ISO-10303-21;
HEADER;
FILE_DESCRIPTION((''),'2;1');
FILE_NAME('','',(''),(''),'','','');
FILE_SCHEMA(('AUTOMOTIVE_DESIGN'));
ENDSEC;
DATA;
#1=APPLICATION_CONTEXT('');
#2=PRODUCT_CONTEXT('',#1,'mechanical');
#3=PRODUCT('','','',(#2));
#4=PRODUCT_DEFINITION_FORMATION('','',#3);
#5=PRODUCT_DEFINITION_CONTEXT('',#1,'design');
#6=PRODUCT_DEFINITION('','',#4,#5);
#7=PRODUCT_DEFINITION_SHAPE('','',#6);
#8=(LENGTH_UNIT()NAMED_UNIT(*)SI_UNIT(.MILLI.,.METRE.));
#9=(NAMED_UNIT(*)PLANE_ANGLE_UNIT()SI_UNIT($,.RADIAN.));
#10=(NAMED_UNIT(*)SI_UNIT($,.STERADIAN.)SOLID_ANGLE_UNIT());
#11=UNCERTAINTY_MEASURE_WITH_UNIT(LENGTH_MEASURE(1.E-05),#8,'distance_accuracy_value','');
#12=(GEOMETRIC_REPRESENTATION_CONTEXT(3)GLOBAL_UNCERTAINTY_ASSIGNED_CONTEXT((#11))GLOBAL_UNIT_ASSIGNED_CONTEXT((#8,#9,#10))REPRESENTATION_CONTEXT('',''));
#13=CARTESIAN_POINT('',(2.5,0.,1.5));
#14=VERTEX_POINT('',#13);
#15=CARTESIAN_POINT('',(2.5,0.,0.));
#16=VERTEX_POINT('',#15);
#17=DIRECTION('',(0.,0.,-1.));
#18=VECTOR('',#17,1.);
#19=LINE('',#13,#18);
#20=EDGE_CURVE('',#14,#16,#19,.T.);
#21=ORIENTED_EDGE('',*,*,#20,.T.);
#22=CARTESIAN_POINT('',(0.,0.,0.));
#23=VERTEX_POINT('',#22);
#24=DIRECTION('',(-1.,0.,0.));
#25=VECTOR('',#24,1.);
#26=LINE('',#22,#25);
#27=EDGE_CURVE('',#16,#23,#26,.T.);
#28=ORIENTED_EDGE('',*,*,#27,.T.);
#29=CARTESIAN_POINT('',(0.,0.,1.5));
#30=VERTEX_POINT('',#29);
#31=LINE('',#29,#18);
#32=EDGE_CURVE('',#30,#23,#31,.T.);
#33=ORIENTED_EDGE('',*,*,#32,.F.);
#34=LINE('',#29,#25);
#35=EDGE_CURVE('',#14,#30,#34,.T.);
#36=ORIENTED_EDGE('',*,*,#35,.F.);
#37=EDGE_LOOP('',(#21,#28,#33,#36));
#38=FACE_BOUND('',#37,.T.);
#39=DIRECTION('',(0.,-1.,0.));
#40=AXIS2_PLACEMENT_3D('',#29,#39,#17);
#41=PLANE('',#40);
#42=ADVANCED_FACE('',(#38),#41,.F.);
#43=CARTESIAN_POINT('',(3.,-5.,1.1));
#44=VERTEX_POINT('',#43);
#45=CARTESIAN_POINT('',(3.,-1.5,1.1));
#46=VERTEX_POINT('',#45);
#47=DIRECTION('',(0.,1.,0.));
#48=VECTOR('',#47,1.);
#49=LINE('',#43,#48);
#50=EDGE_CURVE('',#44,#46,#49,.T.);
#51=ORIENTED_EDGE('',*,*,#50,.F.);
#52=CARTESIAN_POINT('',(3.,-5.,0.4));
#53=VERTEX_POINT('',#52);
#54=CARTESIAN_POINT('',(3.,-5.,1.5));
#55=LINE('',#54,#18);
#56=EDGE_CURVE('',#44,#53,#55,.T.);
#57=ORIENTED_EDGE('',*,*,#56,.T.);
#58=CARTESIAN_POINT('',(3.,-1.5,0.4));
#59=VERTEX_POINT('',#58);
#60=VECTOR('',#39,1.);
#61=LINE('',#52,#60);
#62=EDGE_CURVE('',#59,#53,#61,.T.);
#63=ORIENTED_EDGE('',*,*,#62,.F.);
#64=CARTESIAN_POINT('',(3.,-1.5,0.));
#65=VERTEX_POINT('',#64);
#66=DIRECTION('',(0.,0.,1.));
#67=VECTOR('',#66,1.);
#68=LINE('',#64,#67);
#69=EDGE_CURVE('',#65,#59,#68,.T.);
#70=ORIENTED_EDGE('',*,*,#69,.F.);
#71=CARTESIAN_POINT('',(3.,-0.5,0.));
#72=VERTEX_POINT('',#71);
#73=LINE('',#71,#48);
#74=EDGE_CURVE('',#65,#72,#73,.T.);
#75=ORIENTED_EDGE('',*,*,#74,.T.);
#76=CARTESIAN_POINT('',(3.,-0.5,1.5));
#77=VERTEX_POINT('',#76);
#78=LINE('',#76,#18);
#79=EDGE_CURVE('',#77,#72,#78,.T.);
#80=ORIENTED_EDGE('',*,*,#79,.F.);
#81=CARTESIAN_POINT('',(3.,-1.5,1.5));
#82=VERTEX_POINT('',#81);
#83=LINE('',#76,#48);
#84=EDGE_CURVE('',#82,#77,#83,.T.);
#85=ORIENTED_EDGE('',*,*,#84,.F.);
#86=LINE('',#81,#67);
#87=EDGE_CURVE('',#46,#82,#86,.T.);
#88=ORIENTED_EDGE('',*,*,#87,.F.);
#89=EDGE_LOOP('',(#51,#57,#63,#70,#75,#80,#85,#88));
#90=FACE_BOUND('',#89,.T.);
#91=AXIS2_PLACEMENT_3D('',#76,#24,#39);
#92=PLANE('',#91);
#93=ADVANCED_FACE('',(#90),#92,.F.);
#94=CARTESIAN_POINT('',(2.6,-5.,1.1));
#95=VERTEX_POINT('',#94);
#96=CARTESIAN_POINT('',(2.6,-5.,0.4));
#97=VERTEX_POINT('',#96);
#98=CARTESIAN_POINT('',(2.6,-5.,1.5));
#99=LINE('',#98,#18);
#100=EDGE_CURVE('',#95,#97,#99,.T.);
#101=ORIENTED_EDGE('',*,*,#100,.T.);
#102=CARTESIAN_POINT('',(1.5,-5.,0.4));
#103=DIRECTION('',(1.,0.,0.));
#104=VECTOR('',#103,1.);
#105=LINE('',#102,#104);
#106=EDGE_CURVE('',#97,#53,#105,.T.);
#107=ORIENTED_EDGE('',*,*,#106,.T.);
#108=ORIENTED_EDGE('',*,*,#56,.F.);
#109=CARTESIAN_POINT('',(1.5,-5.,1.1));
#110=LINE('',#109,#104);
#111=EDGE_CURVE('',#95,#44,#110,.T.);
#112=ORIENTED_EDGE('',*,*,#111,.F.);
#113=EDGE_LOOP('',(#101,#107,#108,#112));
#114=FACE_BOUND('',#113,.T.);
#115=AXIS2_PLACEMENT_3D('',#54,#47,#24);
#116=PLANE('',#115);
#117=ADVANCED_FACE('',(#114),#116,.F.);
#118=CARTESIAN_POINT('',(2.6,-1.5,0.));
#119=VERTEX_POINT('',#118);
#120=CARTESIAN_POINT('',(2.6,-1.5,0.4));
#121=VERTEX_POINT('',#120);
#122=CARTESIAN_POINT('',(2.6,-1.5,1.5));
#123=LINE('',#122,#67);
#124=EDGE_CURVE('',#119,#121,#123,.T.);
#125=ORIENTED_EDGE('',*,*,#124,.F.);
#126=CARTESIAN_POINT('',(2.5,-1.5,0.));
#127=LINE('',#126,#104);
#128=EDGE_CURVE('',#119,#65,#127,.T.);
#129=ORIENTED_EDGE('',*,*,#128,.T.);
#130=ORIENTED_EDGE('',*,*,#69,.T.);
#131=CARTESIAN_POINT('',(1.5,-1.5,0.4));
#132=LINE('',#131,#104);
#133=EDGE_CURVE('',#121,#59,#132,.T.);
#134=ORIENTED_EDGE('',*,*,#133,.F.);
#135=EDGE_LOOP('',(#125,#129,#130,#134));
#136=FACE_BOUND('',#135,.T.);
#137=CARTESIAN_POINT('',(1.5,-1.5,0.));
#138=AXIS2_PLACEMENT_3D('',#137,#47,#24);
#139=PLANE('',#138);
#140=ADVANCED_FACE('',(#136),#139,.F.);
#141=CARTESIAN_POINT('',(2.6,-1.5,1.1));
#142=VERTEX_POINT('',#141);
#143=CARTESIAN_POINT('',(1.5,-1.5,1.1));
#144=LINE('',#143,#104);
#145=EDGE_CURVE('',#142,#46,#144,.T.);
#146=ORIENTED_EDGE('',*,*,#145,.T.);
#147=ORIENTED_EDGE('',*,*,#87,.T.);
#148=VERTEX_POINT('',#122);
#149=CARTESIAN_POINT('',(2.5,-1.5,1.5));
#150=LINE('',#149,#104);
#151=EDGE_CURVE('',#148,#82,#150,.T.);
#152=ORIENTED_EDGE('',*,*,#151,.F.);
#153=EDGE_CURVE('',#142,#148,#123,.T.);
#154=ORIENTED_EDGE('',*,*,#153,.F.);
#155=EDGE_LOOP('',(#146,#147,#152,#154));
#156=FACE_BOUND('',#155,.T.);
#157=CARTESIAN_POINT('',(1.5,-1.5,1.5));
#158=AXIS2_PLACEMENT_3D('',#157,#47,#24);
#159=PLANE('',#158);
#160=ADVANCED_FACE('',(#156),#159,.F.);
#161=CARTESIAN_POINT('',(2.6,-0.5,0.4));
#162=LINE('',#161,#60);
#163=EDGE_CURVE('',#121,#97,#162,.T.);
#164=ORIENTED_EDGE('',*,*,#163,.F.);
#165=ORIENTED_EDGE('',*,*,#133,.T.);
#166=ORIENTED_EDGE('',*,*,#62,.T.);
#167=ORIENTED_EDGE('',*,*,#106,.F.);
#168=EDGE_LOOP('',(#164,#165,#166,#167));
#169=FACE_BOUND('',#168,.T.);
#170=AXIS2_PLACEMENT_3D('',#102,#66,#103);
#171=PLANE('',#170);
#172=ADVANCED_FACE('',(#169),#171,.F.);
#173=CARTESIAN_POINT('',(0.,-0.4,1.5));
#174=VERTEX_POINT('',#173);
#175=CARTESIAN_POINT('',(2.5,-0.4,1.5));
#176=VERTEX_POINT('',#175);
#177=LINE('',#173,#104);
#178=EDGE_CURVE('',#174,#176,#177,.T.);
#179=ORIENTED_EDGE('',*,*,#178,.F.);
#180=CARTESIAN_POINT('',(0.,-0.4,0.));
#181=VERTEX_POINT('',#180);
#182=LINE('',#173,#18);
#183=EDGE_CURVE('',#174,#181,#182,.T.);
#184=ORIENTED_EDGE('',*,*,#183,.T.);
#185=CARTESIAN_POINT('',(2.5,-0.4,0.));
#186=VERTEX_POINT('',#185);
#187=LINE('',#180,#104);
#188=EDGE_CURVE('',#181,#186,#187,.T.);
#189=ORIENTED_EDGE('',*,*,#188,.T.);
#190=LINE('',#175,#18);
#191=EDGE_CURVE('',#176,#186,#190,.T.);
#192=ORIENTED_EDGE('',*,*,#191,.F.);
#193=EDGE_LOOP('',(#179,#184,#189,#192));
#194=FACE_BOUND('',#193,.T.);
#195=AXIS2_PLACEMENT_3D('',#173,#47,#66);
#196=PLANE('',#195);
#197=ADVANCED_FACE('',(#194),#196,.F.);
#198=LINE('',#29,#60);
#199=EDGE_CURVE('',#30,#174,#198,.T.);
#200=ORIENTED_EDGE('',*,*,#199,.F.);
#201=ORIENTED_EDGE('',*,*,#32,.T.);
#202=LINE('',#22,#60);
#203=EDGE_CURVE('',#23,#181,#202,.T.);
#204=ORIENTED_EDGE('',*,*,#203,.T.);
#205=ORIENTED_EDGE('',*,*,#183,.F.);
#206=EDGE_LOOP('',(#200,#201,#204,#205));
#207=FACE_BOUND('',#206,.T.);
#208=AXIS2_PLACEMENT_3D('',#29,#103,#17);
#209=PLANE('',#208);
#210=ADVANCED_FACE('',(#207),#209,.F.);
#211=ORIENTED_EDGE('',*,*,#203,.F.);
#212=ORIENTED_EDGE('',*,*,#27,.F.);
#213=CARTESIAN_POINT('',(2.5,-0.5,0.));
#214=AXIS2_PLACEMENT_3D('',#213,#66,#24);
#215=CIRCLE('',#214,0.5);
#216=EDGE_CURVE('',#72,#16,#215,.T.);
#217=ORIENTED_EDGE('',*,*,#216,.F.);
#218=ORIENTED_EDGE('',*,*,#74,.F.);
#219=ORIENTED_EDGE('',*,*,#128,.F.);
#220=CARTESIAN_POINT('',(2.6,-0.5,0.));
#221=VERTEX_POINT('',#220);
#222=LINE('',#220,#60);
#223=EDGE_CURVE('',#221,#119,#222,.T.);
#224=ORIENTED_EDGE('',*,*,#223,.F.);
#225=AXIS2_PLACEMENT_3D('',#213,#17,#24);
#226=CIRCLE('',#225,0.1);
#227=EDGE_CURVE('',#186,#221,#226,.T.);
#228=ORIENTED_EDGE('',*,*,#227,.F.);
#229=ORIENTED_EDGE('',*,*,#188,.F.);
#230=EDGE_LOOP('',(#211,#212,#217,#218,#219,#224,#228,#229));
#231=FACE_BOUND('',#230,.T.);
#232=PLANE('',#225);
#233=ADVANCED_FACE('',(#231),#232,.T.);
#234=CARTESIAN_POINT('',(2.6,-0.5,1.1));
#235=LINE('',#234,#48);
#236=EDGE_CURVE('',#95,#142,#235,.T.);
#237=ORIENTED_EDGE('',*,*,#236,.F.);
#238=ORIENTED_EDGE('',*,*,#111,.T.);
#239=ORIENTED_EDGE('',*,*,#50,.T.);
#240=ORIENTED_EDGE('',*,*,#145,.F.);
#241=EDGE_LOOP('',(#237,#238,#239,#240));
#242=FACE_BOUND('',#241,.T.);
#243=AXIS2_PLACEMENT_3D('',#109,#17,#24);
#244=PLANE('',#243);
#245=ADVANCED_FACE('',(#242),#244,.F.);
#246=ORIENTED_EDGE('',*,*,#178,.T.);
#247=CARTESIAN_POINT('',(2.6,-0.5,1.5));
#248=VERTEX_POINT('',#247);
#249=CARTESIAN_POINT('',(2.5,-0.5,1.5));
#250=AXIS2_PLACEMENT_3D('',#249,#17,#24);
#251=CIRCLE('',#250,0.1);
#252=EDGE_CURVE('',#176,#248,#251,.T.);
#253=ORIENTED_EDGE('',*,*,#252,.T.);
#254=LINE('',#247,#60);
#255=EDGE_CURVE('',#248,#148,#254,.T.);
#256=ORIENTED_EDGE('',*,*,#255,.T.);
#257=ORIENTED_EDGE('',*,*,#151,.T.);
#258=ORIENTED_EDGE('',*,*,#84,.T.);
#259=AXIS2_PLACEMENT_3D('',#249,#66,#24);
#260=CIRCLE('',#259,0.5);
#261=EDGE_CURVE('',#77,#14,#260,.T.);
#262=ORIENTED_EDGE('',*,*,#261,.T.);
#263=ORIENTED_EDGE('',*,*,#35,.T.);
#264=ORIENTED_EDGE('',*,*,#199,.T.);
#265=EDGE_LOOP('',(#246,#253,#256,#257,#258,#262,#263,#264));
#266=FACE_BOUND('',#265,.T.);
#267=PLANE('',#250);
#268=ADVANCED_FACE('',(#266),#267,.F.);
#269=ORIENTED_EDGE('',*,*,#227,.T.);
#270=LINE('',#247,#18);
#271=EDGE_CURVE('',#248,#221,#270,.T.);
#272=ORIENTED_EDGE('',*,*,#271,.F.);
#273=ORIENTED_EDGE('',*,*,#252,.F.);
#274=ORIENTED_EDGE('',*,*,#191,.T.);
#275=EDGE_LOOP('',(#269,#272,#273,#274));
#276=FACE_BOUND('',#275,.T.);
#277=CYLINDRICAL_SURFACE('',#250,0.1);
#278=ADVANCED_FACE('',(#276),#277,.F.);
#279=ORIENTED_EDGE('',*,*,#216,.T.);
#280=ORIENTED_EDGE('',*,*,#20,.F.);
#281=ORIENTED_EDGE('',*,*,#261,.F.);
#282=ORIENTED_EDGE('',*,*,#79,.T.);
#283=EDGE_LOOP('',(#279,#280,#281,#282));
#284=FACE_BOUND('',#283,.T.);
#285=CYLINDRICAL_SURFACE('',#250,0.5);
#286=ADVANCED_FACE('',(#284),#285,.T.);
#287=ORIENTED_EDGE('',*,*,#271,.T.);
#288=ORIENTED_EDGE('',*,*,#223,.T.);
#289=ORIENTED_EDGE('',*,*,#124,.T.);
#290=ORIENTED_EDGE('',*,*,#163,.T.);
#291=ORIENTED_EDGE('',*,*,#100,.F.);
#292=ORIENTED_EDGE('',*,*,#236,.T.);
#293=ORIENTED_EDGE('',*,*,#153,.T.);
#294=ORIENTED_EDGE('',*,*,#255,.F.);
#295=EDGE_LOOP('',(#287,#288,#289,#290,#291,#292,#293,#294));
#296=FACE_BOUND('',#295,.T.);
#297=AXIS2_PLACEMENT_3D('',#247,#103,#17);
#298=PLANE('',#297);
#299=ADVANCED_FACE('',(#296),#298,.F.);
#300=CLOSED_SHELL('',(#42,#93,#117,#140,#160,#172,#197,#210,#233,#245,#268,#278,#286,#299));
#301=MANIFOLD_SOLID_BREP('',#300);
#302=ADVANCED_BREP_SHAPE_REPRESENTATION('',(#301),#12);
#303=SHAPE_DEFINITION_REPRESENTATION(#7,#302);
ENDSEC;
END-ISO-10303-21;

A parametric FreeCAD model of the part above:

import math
import FreeCAD as App
import Part
import Sketcher

V = App.Vector
Q = App.Units.Quantity


def add_polygon(sketch, points):
    """Adds a closed chain of lines whose ends are joined by coincident constraints."""
    first, n = sketch.GeometryCount, len(points)
    for a, b in zip(points, points[1:] + points[:1]):
        sketch.addGeometry(Part.LineSegment(App.Vector(*a, 0), App.Vector(*b, 0)), False)
    for i in range(n):
        sketch.addConstraint(Sketcher.Constraint("Coincident", first + i, 2, first + (i + 1) % n, 1))

doc = App.newDocument("Part")
body = doc.addObject("PartDesign::Body", "Body")

# Sketch on XY plane
sketch1 = body.newObject("Sketcher::SketchObject", "Sketch")
sketch1.AttachmentSupport = (doc.getObject("XY_Plane"), [""])
sketch1.MapMode = "FlatFace"
sketch1.addGeometry([
    Part.LineSegment(V(2.5, 0, 0), V(0, 0, 0)),  # 0
    Part.LineSegment(V(0, 0, 0), V(0, -0.4, 0)),  # 1
    Part.LineSegment(V(0, -0.4, 0), V(2.5, -0.4, 0)),  # 2
    Part.ArcOfCircle(Part.Circle(V(2.5, -0.5, 0), V(0, 0, 1), 0.1), math.radians(0), math.radians(90)),  # 3
    Part.LineSegment(V(2.6, -0.5, 0), V(2.6, -5, 0)),  # 4
    Part.LineSegment(V(2.6, -5, 0), V(3, -5, 0)),  # 5
    Part.LineSegment(V(3, -5, 0), V(3, -0.5, 0)),  # 6
    Part.ArcOfCircle(Part.Circle(V(2.5, -0.5, 0), V(0, 0, 1), 0.5), math.radians(0), math.radians(90)),  # 7
], False)
sketch1.addConstraint([
    Sketcher.Constraint("Coincident", 0, 2, 1, 1),
    Sketcher.Constraint("Coincident", 1, 2, 2, 1),
    Sketcher.Constraint("Tangent", 2, 2, 3, 2),
    Sketcher.Constraint("Tangent", 3, 1, 4, 1),
    Sketcher.Constraint("Coincident", 4, 2, 5, 1),
    Sketcher.Constraint("Coincident", 5, 2, 6, 1),
    Sketcher.Constraint("Tangent", 6, 2, 7, 1),
    Sketcher.Constraint("Tangent", 7, 2, 0, 1),
    Sketcher.Constraint("Horizontal", 0),
    Sketcher.Constraint("Vertical", 1),
    Sketcher.Constraint("Horizontal", 2),
    Sketcher.Constraint("Vertical", 4),
    Sketcher.Constraint("Horizontal", 5),
    Sketcher.Constraint("Vertical", 6),
    Sketcher.Constraint("Coincident", 0, 2, -1, 1),
    Sketcher.Constraint("Coincident", 7, 3, 3, 3),
    Sketcher.Constraint("Radius", 3, Q("0.1 mm")),
    Sketcher.Constraint("Radius", 7, Q("0.5 mm")),
    Sketcher.Constraint("DistanceX", 0, 2, 0, 1, Q("2.5 mm")),
    Sketcher.Constraint("DistanceY", 4, 2, 4, 1, Q("4.5 mm")),
])
pad1 = body.newObject("PartDesign::Pad", "Pad")
pad1.Profile = sketch1
pad1.Length = 1.5

# Sketch on YZ plane
sketch2 = body.newObject("Sketcher::SketchObject", "Sketch001")
sketch2.AttachmentSupport = (doc.getObject("YZ_Plane"), [""])
sketch2.MapMode = "FlatFace"
sketch2.AttachmentOffset = App.Placement(V(0, 0, 3), App.Rotation())
add_polygon(sketch2, [(-1.5, 1.5), (-5, 1.5), (-5, 1.1), (-1.5, 1.1)])  # lines 0-3
add_polygon(sketch2, [(-1.5, 0.4), (-5, 0.4), (-5, 0), (-1.5, 0)])  # lines 4-7
sketch2.addConstraint([
    Sketcher.Constraint("Horizontal", 0),
    Sketcher.Constraint("Vertical", 1),
    Sketcher.Constraint("Horizontal", 2),
    Sketcher.Constraint("Vertical", 3),
    Sketcher.Constraint("Horizontal", 4),
    Sketcher.Constraint("Vertical", 5),
    Sketcher.Constraint("Horizontal", 6),
    Sketcher.Constraint("Vertical", 7),
    Sketcher.Constraint("PointOnObject", 5, 2, -1),
    Sketcher.Constraint("Vertical", 1, 2, 4, 2),
    Sketcher.Constraint("Vertical", 3, 2, 6, 2),
    Sketcher.Constraint("Equal", 3, 5),
    Sketcher.Constraint("DistanceX", 0, 2, 0, 1, Q("3.5 mm")),
    Sketcher.Constraint("DistanceY", 1, 2, 1, 1, Q("0.4 mm")),
    Sketcher.Constraint("DistanceX", 0, 2, -1, 1, Q("5 mm")),
    Sketcher.Constraint("DistanceY", -1, 1, 0, 2, Q("1.5 mm")),
])
pocket1 = body.newObject("PartDesign::Pocket", "Pocket")
pocket1.Profile = sketch2
pocket1.Length = 1.5

doc.recompute()
